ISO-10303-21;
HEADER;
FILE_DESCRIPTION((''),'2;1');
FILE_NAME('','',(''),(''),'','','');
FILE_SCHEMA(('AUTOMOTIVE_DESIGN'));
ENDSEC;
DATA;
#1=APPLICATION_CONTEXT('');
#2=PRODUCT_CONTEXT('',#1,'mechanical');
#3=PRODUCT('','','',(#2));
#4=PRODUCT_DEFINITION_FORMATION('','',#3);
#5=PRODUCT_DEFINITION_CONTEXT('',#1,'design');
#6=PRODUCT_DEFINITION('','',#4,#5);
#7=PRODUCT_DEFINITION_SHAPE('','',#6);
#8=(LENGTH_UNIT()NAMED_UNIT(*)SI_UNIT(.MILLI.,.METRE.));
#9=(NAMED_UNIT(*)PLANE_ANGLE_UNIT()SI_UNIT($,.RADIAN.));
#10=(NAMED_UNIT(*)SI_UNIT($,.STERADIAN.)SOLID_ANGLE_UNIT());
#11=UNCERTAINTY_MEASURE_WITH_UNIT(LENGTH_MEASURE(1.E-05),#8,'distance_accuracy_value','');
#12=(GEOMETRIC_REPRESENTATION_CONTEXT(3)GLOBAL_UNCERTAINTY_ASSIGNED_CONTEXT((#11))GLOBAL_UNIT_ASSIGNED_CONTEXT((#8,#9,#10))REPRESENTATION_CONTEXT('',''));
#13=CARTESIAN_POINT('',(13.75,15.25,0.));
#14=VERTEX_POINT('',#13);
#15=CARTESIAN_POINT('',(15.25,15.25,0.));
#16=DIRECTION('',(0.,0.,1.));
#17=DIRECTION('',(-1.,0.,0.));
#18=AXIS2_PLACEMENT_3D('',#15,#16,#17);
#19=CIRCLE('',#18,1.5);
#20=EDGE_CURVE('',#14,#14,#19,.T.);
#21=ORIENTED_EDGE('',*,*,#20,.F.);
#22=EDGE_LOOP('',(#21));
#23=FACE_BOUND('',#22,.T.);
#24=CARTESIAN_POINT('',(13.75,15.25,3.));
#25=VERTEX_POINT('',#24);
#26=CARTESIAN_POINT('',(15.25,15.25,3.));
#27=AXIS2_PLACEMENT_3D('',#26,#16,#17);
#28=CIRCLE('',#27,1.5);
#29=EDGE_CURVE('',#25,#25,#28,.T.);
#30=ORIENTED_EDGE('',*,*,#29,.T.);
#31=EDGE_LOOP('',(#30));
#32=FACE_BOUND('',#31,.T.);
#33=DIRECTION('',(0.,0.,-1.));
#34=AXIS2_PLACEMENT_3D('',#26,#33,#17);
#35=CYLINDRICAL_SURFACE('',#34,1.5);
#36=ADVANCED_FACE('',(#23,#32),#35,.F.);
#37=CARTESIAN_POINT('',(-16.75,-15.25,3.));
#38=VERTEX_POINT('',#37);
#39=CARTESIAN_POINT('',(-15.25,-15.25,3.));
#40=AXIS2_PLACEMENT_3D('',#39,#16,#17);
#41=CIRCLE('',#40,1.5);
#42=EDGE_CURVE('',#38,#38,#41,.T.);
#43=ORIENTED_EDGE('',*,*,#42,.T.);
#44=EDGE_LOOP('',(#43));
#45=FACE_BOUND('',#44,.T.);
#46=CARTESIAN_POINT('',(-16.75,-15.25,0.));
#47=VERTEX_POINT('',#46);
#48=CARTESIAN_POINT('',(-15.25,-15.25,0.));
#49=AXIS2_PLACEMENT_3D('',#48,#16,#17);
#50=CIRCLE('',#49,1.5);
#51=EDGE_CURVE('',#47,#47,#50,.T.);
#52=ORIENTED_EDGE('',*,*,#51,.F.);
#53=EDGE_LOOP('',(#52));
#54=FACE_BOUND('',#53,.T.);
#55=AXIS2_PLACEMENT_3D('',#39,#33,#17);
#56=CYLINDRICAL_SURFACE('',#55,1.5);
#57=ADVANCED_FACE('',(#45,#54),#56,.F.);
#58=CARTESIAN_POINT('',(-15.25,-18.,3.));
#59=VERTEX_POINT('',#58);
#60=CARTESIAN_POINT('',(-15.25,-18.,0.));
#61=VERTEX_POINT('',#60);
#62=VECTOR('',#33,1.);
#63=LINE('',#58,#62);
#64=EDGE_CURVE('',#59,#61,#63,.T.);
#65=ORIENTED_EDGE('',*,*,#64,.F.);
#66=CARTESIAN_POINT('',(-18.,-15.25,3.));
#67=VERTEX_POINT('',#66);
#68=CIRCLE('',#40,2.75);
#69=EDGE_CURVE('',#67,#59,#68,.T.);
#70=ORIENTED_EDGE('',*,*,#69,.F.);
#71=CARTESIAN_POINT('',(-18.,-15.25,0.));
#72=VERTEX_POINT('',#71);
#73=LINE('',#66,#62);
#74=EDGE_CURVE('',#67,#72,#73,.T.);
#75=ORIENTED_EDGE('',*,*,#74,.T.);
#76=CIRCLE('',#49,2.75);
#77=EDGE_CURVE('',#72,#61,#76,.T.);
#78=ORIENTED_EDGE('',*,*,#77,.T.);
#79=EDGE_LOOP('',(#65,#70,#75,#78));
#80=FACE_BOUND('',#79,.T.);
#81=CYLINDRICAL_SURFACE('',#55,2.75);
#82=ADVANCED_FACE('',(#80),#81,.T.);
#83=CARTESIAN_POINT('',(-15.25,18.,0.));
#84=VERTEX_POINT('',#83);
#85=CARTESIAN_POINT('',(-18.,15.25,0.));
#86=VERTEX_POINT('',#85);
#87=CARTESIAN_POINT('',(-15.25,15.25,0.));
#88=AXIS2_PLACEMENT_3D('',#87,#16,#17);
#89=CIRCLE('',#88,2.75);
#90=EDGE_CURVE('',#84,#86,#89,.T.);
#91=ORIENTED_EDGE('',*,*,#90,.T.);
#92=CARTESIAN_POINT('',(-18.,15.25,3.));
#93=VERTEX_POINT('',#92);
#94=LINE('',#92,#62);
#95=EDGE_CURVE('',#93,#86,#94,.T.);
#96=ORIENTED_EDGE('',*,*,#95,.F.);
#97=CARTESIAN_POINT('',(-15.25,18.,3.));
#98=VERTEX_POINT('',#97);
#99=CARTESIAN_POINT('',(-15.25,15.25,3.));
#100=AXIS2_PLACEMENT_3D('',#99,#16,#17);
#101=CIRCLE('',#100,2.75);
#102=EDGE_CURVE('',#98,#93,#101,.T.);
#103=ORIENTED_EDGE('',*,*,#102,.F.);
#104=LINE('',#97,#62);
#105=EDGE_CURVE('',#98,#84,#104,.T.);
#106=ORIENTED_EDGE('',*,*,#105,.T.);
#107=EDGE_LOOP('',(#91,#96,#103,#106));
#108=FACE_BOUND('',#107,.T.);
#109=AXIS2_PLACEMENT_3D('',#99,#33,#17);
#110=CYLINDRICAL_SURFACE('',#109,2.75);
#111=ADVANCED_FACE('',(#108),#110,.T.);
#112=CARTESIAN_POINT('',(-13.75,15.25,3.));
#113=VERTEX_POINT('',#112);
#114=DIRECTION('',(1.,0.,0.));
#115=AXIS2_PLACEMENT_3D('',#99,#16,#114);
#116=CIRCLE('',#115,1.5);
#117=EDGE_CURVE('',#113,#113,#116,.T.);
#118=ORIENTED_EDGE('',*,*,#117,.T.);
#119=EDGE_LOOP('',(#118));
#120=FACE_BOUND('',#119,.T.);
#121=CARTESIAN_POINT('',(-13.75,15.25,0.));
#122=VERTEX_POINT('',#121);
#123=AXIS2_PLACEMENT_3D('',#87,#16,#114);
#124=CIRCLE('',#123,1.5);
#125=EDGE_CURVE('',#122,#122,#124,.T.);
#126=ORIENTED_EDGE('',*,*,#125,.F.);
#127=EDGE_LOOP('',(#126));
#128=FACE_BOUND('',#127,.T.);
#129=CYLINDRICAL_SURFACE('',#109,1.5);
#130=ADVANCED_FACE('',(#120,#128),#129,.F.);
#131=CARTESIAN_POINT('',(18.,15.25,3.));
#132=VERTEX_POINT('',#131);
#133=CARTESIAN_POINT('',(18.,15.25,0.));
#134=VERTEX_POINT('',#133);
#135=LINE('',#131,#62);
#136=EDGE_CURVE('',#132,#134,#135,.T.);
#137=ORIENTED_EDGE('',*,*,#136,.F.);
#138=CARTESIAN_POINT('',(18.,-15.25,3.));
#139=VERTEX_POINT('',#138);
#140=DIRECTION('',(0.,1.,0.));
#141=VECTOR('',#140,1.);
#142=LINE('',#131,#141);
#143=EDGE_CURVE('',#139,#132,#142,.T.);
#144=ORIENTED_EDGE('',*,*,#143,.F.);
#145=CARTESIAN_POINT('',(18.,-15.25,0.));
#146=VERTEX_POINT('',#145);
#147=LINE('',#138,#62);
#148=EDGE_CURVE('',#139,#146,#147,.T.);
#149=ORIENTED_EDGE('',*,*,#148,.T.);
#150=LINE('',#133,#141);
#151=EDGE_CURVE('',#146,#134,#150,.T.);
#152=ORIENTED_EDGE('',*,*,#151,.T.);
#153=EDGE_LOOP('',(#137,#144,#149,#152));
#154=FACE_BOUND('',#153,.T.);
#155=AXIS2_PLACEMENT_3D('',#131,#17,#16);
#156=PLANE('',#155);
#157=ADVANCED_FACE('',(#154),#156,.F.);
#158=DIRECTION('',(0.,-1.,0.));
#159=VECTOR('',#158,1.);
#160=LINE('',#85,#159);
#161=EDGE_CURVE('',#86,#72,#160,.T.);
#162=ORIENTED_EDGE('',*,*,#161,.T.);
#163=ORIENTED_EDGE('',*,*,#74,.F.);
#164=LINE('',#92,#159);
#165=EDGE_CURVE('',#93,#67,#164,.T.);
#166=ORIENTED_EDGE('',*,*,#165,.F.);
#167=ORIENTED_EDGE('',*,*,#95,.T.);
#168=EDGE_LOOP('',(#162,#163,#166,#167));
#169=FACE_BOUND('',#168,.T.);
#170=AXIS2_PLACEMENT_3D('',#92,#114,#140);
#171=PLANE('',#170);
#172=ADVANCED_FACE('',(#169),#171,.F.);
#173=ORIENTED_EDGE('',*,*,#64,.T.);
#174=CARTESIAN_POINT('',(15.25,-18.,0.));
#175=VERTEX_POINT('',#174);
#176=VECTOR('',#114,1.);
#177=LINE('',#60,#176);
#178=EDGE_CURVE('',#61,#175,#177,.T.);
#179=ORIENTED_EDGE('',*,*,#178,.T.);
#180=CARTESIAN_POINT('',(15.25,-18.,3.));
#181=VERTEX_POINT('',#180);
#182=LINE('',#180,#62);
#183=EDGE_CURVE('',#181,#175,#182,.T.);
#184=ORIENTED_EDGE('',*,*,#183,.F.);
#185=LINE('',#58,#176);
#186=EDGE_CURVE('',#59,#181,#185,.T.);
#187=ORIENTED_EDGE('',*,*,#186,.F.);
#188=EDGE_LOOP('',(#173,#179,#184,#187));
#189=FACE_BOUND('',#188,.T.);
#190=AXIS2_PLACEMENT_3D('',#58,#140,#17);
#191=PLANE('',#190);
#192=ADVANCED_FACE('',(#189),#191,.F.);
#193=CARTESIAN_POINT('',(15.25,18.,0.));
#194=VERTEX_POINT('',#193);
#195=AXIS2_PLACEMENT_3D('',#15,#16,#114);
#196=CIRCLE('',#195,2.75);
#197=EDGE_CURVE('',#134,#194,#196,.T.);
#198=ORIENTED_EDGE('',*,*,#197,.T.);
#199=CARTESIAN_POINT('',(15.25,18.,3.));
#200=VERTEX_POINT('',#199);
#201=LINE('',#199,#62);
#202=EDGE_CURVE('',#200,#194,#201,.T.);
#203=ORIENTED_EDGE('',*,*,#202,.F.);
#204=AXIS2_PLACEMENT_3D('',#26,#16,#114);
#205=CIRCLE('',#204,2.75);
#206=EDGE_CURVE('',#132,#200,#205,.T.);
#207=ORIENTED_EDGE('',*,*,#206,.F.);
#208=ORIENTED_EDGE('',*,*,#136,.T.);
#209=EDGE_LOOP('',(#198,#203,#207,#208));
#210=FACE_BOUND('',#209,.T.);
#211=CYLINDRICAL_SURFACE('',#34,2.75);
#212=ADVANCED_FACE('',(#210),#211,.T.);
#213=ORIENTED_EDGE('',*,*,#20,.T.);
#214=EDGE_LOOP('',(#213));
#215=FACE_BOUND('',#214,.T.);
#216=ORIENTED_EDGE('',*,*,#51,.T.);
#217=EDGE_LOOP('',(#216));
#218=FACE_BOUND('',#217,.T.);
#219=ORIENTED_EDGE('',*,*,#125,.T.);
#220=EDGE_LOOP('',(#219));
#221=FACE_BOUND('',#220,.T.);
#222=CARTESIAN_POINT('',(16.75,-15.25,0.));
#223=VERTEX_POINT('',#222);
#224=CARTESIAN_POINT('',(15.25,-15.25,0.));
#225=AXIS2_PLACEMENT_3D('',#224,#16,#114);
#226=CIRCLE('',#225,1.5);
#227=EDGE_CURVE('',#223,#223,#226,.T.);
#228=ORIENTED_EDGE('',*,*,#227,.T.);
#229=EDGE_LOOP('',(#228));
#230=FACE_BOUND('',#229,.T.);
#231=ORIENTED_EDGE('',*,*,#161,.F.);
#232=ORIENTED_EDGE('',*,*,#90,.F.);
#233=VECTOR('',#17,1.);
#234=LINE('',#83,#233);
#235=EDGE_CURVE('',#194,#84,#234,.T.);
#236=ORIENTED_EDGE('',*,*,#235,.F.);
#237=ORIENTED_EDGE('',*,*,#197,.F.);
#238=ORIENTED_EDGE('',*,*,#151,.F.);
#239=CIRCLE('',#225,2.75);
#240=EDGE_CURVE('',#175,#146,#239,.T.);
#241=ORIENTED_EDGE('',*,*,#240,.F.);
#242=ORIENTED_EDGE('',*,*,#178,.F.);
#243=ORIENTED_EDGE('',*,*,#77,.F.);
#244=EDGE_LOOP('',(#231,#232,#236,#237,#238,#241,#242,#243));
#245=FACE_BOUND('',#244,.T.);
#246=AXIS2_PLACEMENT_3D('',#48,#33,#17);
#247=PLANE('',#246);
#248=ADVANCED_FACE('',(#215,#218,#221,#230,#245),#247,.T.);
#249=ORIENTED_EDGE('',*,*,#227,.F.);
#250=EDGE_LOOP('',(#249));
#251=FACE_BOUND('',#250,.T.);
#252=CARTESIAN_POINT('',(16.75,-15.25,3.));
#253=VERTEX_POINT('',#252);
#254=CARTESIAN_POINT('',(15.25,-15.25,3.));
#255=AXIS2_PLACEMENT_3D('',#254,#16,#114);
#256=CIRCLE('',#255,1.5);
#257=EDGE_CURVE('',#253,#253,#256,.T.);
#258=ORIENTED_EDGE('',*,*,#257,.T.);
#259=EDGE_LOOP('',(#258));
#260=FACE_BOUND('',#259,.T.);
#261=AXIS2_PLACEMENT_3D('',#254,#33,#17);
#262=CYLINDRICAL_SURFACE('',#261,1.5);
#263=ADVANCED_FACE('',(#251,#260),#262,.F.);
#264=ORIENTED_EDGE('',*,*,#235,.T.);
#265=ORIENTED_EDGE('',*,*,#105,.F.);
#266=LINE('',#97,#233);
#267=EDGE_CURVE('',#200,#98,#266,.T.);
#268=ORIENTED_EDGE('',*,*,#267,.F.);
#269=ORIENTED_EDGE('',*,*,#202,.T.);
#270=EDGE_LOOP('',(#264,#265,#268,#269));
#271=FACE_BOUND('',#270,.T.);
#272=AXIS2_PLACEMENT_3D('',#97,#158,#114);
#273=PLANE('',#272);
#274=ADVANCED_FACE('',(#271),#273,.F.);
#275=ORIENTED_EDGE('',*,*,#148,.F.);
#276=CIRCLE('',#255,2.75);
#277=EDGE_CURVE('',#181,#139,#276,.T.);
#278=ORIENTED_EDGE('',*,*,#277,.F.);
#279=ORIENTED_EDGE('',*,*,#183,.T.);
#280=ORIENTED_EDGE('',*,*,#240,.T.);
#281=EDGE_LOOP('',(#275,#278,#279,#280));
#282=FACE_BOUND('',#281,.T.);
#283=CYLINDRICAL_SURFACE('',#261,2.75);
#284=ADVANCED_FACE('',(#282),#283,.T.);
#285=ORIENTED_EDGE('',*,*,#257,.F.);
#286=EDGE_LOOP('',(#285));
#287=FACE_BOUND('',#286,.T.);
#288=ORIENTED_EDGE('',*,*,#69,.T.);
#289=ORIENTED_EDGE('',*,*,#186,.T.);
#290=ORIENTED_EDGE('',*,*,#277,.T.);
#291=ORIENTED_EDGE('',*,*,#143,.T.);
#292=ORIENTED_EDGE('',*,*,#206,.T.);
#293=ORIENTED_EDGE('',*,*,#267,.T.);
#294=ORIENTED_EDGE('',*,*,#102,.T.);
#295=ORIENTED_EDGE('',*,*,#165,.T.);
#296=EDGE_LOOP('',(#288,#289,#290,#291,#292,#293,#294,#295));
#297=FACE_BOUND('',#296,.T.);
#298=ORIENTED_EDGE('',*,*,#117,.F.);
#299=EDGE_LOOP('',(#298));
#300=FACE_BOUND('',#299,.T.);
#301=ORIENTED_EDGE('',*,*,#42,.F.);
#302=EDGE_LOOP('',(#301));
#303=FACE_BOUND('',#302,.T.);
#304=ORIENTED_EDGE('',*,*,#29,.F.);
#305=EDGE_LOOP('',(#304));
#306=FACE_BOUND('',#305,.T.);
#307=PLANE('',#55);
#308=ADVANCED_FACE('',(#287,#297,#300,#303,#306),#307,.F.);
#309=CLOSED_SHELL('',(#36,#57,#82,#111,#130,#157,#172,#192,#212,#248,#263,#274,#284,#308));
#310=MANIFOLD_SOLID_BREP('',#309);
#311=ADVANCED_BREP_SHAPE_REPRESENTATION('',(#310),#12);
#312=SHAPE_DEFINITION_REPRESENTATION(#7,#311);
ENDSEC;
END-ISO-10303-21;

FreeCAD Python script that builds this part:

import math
import FreeCAD as App
import Part
import Sketcher

V = App.Vector
Q = App.Units.Quantity

doc = App.newDocument("Part")
body = doc.addObject("PartDesign::Body", "Body")

sketch1 = body.newObject("Sketcher::SketchObject", "Sketch")
sketch1.AttachmentSupport = (doc.getObject("XY_Plane"), [""])
sketch1.MapMode = "FlatFace"
sketch1.addGeometry(Part.LineSegment(V(15.2, 18, 0), V(-15.2, 18, 0)), False)
sketch1.addGeometry(Part.ArcOfCircle(Part.Circle(V(-15.2, 15.2, 0), V(0, 0, 1), 2.8), math.radians(90), math.radians(180)), False)
sketch1.addGeometry(Part.LineSegment(V(-18, 15.2, 0), V(-18, -15.2, 0)), False)
sketch1.addGeometry(Part.ArcOfCircle(Part.Circle(V(-15.2, -15.2, 0), V(0, 0, 1), 2.8), math.radians(-180), math.radians(-90)), False)
sketch1.addGeometry(Part.LineSegment(V(-15.2, -18, 0), V(15.2, -18, 0)), False)
sketch1.addGeometry(Part.ArcOfCircle(Part.Circle(V(15.2, -15.2, 0), V(0, 0, 1), 2.8), math.radians(-90), math.radians(0)), False)
sketch1.addGeometry(Part.LineSegment(V(18, -15.2, 0), V(18, 15.2, 0)), False)
sketch1.addGeometry(Part.ArcOfCircle(Part.Circle(V(15.2, 15.2, 0), V(0, 0, 1), 2.8), math.radians(0), math.radians(90)), False)
sketch1.addGeometry(Part.Circle(V(15.2, -15.2, 0), V(0, 0, 1), 1.5), False)
sketch1.addGeometry(Part.Circle(V(-15.2, -15.2, 0), V(0, 0, 1), 1.5), False)
sketch1.addGeometry(Part.Circle(V(15.2, 15.2, 0), V(0, 0, 1), 1.5), False)
sketch1.addGeometry(Part.Circle(V(-15.2, 15.2, 0), V(0, 0, 1), 1.5), False)
sketch1.addConstraint(Sketcher.Constraint("Tangent", 0, 2, 1, 1))
sketch1.addConstraint(Sketcher.Constraint("Tangent", 1, 2, 2, 1))
sketch1.addConstraint(Sketcher.Constraint("Tangent", 2, 2, 3, 1))
sketch1.addConstraint(Sketcher.Constraint("Tangent", 3, 2, 4, 1))
sketch1.addConstraint(Sketcher.Constraint("Tangent", 4, 2, 5, 1))
sketch1.addConstraint(Sketcher.Constraint("Tangent", 5, 2, 6, 1))
sketch1.addConstraint(Sketcher.Constraint("Tangent", 6, 2, 7, 1))
sketch1.addConstraint(Sketcher.Constraint("Tangent", 7, 2, 0, 1))
sketch1.addConstraint(Sketcher.Constraint("Horizontal", 0))
sketch1.addConstraint(Sketcher.Constraint("Vertical", 2))
sketch1.addConstraint(Sketcher.Constraint("Horizontal", 4))
sketch1.addConstraint(Sketcher.Constraint("Vertical", 6))
sketch1.addConstraint(Sketcher.Constraint("Coincident", 8, 3, 5, 3))
sketch1.addConstraint(Sketcher.Constraint("Coincident", 9, 3, 3, 3))
sketch1.addConstraint(Sketcher.Constraint("Coincident", 10, 3, 7, 3))
sketch1.addConstraint(Sketcher.Constraint("Coincident", 11, 3, 1, 3))
sketch1.addConstraint(Sketcher.Constraint("Equal", 1, 3))
sketch1.addConstraint(Sketcher.Constraint("Equal", 3, 5))
sketch1.addConstraint(Sketcher.Constraint("Equal", 5, 7))
sketch1.addConstraint(Sketcher.Constraint("Equal", 8, 9))
sketch1.addConstraint(Sketcher.Constraint("Equal", 9, 10))
sketch1.addConstraint(Sketcher.Constraint("Equal", 10, 11))
sketch1.addConstraint(Sketcher.Constraint("Symmetric", 1, 3, 5, 3, -1, 1))
sketch1.addConstraint(Sketcher.Constraint("Equal", 4, 2))
sketch1.addConstraint(Sketcher.Constraint("Diameter", 8, Q("3 mm")))
sketch1.addConstraint(Sketcher.Constraint("Radius", 1, Q("2.75 mm")))
sketch1.addConstraint(Sketcher.Constraint("DistanceX", 0, 2, 0, 1, Q("30.5 mm")))
pad1 = body.newObject("PartDesign::Pad", "Pad")
pad1.Profile = sketch1
pad1.Length = 3

doc.recompute()
